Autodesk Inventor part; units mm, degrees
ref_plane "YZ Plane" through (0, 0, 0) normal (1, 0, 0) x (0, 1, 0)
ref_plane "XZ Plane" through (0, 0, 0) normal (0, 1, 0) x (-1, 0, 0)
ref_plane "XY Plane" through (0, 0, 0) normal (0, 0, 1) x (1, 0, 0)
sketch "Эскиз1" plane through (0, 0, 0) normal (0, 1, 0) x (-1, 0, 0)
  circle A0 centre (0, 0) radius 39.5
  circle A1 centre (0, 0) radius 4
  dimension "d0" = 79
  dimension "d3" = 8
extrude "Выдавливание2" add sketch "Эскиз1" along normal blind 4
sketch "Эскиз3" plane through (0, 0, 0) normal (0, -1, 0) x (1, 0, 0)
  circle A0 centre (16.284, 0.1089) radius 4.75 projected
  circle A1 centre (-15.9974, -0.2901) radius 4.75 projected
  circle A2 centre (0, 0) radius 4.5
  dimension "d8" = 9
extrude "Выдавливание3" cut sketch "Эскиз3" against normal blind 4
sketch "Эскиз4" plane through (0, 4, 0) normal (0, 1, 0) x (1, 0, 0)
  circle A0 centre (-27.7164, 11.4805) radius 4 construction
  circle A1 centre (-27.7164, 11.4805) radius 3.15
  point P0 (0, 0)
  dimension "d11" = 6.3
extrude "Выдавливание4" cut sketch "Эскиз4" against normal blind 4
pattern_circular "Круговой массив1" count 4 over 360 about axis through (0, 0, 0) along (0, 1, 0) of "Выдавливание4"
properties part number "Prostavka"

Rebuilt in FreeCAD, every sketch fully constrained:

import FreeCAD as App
import Part
import Sketcher
from FreeCAD import Vector

doc = App.newDocument("Part")
body = doc.addObject("PartDesign::Body", "Body")

sketch1 = body.newObject("Sketcher::SketchObject", "Sketch")
sketch1.AttachmentSupport = (doc.getObject("XZ_Plane"), [""])
sketch1.MapMode = "FlatFace"
sketch1.addGeometry([
    Part.Circle(Vector(0, 0, 0), Vector(0, 0, 1), 39.5),
    Part.Circle(Vector(0, 0, 0), Vector(0, 0, 1), 4),
], False)
sketch1.addConstraint([
    Sketcher.Constraint("Coincident", 0, 3, -1, 1),
    Sketcher.Constraint("Coincident", 1, 3, -1, 1),
    Sketcher.Constraint("Diameter", 0, 79.0),
    Sketcher.Constraint("Diameter", 1, 8.0),
])
pad1 = body.newObject("PartDesign::Pad", "Pad")
pad1.Profile = sketch1
pad1.Length = 4
pad1.Reversed = True

sketch2 = body.newObject("Sketcher::SketchObject", "Sketch001")
sketch2.AttachmentSupport = (doc.getObject("XZ_Plane"), [""])
sketch2.MapMode = "FlatFace"
sketch2.addGeometry([
    Part.Circle(Vector(16.3, 0.1, 0), Vector(0, 0, 1), 4.8),
    Part.Circle(Vector(-16, -0.3, 0), Vector(0, 0, 1), 4.8),
    Part.Circle(Vector(0, 0, 0), Vector(0, 0, 1), 4.5),
], False)
sketch2.addConstraint([
    Sketcher.Constraint("Coincident", 2, 3, -1, 1),
    Sketcher.Constraint("Equal", 0, 1),
    Sketcher.Constraint("Diameter", 2, 9.0),
    Sketcher.Constraint("Diameter", 0, 9.5),
    Sketcher.Constraint("DistanceY", 1, 3, -1, 1, 0.29),
    Sketcher.Constraint("DistanceX", -1, 1, 0, 3, 16.284),
    Sketcher.Constraint("DistanceY", -1, 1, 0, 3, 0.109),
    Sketcher.Constraint("DistanceX", 1, 3, -1, 1, 15.9974),
])
pocket1 = body.newObject("PartDesign::Pocket", "Pocket")
pocket1.Profile = sketch2
pocket1.Length = 4

sketch3 = body.newObject("Sketcher::SketchObject", "Sketch002")
sketch3.AttachmentSupport = (doc.getObject("XZ_Plane"), [""])
sketch3.MapMode = "FlatFace"
sketch3.AttachmentOffset = App.Placement(Vector(0, 0, -4), App.Rotation())
sketch3.addGeometry(Part.Circle(Vector(-27.7, -11.5, 0), Vector(0, 0, 1), 3.1), False)
sketch3.addConstraint([
    Sketcher.Constraint("Diameter", 0, 6.3),
    Sketcher.Constraint("DistanceX", 0, 3, -1, 1, 27.7164),
    Sketcher.Constraint("DistanceY", 0, 3, -1, 1, 11.4805),
])
pocket2 = body.newObject("PartDesign::Pocket", "Pocket001")
pocket2.Profile = sketch3
pocket2.Length = 4
pocket2.Reversed = True
doc.recompute()

polarpattern = body.newObject("PartDesign::PolarPattern", "PolarPattern")
polarpattern.Originals = [pocket2]
polarpattern.Axis = (doc.getObject("Y_Axis"), [""])
polarpattern.Angle = 360
polarpattern.Occurrences = 4
body.Tip = polarpattern

doc.recompute()
